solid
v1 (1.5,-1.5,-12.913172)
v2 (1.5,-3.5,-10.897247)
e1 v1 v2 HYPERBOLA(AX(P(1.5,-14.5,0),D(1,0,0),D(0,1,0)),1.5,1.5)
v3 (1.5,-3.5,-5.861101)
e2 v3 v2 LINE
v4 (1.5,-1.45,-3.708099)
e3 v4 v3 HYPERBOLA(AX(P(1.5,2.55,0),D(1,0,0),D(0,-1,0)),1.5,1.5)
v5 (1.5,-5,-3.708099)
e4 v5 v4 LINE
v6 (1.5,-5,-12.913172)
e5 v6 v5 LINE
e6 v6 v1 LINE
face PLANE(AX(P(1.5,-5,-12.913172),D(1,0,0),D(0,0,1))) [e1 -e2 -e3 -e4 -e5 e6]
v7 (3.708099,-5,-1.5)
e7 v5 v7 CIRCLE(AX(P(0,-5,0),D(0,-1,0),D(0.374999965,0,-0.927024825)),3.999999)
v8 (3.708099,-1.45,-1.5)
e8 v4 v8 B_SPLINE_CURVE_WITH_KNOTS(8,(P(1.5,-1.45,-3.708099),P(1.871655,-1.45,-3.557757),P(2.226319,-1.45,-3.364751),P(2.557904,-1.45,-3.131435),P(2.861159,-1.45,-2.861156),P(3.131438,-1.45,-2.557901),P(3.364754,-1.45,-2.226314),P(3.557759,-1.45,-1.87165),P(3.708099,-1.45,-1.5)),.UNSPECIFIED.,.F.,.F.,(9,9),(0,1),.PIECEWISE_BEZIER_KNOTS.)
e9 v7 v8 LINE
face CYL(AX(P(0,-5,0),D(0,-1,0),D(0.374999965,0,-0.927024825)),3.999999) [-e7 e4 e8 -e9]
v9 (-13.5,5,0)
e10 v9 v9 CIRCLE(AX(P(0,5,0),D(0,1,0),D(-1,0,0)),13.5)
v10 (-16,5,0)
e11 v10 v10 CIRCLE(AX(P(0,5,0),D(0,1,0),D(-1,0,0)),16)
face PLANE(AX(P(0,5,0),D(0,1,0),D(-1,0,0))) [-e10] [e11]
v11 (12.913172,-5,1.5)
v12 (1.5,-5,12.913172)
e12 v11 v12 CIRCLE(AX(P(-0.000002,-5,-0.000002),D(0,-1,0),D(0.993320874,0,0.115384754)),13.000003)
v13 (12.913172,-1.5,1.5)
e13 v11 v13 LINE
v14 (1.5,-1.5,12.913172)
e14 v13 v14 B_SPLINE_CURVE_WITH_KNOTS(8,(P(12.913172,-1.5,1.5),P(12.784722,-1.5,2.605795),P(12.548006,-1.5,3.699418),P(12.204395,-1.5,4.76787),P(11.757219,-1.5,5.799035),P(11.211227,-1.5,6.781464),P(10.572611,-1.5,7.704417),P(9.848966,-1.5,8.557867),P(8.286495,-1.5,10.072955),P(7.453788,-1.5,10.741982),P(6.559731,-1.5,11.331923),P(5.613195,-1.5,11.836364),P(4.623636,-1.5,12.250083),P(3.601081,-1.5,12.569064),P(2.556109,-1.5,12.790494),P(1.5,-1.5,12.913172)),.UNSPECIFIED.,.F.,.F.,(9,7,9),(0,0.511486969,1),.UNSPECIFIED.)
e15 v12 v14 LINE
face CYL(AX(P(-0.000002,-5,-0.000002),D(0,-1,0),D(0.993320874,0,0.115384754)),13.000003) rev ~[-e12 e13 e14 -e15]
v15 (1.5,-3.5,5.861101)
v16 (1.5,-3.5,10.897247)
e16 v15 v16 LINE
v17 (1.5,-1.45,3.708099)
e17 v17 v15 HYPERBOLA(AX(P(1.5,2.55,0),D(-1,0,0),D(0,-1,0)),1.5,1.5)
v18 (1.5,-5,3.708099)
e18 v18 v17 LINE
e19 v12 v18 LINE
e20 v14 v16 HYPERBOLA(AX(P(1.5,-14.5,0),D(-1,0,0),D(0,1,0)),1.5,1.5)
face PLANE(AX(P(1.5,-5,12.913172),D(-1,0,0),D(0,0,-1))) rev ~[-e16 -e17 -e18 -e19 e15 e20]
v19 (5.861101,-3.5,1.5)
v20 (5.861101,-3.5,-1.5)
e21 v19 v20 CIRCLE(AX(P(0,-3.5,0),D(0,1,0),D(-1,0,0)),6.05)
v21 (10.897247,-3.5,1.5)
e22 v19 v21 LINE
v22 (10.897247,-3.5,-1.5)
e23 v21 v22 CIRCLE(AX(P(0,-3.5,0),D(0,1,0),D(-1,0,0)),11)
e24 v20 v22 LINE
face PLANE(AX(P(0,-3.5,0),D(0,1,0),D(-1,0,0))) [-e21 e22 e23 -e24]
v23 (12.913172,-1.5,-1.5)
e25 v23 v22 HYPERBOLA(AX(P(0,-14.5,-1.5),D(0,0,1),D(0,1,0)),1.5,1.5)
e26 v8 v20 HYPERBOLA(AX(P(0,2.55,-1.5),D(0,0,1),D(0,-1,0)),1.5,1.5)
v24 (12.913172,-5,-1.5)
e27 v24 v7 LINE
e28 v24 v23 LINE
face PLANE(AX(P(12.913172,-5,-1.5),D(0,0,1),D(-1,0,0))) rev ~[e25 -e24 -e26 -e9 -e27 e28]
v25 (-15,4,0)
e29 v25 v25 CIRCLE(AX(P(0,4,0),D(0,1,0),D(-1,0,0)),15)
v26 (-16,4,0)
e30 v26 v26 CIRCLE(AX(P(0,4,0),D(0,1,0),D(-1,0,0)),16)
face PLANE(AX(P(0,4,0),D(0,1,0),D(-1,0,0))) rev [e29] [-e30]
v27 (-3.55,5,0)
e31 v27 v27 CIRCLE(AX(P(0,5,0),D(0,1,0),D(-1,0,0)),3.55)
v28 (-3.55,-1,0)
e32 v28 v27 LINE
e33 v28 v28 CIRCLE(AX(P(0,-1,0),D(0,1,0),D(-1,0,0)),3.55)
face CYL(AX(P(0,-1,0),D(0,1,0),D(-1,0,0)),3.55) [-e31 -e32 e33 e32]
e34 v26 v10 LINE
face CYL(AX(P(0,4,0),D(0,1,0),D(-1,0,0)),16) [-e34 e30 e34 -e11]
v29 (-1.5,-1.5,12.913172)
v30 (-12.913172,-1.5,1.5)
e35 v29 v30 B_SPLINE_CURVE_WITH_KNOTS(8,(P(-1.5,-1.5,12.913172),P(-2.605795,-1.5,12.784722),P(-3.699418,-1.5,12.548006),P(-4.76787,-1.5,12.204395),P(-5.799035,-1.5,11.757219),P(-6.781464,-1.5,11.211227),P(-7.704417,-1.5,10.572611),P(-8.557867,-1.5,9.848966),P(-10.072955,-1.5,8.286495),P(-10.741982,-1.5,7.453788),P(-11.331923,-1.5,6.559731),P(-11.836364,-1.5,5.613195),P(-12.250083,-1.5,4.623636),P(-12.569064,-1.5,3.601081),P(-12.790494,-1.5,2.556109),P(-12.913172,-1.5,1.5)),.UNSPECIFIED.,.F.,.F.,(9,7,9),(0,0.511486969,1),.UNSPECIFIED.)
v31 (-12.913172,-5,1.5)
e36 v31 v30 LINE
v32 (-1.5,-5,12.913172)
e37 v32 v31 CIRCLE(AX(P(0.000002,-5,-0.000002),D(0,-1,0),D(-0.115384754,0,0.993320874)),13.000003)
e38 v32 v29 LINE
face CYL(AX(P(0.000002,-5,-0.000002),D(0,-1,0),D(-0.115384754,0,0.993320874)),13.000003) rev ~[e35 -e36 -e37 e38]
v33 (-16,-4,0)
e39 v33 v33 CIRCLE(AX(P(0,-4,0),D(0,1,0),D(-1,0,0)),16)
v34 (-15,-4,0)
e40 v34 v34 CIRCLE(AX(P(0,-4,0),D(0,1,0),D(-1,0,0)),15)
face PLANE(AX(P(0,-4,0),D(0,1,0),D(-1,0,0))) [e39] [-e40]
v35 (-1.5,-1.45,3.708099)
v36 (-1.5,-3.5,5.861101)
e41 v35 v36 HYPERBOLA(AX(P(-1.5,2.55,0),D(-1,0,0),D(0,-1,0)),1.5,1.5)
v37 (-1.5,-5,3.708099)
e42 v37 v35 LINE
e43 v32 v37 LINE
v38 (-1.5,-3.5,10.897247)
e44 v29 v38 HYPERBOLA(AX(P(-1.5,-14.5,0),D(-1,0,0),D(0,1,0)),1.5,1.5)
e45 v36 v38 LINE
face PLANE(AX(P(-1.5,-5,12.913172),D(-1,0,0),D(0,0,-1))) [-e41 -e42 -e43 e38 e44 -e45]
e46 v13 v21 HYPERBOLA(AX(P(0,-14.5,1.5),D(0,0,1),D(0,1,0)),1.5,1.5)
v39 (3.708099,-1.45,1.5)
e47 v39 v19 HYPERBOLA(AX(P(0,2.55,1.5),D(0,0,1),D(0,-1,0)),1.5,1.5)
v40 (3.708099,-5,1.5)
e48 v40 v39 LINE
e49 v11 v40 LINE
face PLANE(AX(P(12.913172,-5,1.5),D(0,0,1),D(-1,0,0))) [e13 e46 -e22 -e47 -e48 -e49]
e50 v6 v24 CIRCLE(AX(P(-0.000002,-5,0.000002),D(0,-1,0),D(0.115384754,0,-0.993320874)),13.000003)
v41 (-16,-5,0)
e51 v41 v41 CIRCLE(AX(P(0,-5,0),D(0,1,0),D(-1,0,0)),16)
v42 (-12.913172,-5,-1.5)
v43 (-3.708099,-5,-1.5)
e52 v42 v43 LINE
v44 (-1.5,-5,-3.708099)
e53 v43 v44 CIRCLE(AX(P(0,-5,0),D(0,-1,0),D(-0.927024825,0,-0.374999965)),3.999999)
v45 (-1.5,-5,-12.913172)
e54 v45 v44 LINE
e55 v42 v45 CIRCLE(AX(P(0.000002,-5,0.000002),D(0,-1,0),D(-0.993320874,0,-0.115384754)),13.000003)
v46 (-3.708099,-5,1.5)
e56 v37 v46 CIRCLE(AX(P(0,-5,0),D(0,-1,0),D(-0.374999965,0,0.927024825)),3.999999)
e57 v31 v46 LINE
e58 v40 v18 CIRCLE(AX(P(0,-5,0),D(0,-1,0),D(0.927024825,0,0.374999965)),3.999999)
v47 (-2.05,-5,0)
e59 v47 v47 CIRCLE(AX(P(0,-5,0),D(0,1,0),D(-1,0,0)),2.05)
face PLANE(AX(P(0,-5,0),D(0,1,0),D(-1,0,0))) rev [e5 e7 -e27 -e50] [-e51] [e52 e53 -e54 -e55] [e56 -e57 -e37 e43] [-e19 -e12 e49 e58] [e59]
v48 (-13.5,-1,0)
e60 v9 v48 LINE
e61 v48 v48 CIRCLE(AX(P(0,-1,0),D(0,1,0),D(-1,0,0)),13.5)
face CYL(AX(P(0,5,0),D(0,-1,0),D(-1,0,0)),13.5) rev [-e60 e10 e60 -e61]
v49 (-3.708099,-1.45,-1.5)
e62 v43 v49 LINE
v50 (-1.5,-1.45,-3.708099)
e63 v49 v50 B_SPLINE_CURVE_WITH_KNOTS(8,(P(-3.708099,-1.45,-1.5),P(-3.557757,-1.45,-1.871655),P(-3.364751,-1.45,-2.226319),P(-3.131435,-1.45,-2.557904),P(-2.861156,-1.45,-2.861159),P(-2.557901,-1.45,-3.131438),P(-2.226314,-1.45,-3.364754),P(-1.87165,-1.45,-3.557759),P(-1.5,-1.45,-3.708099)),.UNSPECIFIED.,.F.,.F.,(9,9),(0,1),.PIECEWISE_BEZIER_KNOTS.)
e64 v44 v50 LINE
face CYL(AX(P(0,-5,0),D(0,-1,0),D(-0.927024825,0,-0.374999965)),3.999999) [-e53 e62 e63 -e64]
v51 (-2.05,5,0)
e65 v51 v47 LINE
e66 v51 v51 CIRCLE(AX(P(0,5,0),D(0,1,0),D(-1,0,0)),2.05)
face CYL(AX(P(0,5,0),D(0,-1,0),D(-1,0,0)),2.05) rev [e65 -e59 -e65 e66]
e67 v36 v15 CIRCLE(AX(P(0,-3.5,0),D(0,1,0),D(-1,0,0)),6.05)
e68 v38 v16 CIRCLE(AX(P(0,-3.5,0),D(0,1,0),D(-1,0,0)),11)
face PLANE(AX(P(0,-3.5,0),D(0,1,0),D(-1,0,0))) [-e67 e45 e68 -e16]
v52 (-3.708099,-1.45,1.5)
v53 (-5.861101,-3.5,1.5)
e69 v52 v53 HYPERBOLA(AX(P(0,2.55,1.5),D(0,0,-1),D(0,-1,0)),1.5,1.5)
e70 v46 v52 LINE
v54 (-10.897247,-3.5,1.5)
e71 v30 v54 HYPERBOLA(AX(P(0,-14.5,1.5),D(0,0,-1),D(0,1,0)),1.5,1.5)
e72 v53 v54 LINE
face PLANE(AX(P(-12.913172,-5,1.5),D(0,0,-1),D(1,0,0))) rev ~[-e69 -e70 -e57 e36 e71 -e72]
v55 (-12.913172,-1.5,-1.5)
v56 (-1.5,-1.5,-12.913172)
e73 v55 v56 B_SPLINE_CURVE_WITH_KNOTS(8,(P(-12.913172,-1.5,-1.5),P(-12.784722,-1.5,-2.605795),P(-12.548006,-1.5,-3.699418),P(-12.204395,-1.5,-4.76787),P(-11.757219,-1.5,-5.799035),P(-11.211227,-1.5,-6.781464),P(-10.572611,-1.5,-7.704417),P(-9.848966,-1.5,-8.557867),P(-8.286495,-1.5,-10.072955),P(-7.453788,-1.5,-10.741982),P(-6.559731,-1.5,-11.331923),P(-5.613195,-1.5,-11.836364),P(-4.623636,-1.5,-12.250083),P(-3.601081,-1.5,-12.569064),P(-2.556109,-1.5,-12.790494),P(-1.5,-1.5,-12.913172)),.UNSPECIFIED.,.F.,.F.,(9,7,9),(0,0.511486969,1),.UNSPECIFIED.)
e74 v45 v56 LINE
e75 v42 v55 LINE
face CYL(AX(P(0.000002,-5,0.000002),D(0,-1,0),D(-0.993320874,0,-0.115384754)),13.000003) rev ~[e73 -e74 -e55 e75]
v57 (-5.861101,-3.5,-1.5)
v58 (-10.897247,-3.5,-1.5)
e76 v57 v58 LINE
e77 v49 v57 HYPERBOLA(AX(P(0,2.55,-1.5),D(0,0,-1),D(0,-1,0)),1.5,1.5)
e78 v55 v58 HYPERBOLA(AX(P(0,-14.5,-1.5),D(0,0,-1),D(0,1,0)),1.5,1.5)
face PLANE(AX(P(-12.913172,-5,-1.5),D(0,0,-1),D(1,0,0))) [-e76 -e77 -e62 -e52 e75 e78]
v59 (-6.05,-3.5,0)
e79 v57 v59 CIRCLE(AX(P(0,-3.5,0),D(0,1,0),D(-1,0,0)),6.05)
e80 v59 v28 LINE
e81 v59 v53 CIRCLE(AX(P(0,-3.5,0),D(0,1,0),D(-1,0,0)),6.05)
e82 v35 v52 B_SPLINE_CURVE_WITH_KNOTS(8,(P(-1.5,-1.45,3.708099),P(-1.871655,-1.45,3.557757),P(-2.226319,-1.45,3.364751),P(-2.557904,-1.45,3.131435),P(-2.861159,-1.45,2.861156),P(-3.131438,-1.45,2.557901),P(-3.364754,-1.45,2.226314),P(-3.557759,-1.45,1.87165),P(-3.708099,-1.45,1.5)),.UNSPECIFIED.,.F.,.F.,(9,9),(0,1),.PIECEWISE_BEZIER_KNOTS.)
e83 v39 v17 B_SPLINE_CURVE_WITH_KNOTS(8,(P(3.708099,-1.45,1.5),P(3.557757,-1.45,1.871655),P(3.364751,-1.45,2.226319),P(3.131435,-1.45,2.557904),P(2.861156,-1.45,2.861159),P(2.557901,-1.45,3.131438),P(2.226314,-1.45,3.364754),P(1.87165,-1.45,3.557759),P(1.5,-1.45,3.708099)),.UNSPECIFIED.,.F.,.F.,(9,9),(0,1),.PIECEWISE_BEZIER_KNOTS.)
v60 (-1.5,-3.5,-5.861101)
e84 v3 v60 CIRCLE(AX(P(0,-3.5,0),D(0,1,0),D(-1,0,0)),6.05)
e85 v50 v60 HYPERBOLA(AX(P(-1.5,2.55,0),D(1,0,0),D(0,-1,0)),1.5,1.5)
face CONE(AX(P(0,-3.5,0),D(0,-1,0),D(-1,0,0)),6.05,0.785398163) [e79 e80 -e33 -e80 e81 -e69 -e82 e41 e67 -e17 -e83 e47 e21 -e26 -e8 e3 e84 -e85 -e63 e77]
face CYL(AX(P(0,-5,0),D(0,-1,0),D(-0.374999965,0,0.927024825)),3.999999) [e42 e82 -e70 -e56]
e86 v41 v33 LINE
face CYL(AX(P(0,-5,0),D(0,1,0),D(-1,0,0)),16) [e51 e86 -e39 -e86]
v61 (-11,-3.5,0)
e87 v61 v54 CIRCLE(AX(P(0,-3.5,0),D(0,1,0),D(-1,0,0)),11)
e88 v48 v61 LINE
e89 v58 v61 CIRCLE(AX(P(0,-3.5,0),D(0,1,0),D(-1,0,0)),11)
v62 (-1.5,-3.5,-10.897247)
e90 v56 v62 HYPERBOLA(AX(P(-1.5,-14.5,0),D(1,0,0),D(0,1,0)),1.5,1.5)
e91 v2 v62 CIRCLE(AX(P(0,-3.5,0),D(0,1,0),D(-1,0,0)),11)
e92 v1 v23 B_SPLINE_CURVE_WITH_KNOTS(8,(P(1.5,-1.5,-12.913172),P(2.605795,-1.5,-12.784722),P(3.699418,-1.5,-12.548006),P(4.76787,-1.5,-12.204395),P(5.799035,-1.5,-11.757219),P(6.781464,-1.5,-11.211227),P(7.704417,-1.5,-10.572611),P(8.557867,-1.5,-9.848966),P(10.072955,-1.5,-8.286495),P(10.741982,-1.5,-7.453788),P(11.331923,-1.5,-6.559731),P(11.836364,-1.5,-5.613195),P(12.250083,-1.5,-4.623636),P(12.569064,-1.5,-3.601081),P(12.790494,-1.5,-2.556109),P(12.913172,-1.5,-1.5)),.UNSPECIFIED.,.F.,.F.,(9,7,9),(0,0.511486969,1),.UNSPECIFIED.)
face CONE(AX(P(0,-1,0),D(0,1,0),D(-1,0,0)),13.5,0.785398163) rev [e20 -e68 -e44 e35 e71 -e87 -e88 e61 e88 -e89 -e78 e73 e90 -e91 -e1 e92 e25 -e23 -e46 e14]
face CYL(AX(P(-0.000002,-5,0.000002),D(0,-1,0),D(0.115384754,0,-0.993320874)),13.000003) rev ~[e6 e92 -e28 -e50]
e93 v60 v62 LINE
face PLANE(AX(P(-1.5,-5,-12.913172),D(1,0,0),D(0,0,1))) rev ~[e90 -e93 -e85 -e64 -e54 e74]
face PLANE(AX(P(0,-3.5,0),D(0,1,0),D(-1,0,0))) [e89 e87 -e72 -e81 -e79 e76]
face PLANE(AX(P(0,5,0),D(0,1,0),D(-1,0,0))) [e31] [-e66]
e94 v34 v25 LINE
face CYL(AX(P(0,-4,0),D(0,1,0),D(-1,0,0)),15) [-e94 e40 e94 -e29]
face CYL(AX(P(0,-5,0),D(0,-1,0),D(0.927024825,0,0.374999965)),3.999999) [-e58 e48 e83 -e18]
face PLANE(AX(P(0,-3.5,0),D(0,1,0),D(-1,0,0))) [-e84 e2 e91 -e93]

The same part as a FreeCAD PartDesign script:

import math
import FreeCAD as App
import Part
import Sketcher
from FreeCAD import Vector


def add_polygon(sketch, points):
    """Adds a closed chain of lines whose ends are joined by coincident constraints."""
    first, n = sketch.GeometryCount, len(points)
    for a, b in zip(points, points[1:] + points[:1]):
        sketch.addGeometry(Part.LineSegment(App.Vector(*a, 0), App.Vector(*b, 0)), False)
    for i in range(n):
        sketch.addConstraint(Sketcher.Constraint("Coincident", first + i, 2, first + (i + 1) % n, 1))

doc = App.newDocument("Part")
params = doc.addObject("Spreadsheet::Sheet", "Params")
for row, (alias, value) in enumerate([
    ("sketch1_width", "1 mm"),
    ("sketch1_height", "10 mm"),
    ("sketch1_height2", "6 mm"),
    ("sketch1_width2", "1.5 mm"),
    ("sketch1_width3", "2.5 mm"),
    ("revolution_angle", "360 deg"),
    ("sketch2_radius", "3.999999 mm"),
    ("pocket1_length", "5 mm"),
], start=1):
    params.set(f"A{row}", alias)
    params.set(f"B{row}", "=" + value)
    params.setAlias(f"B{row}", alias)

body = doc.addObject("PartDesign::Body", "Body")

sketch1 = body.newObject("Sketcher::SketchObject", "Sketch")
sketch1.AttachmentSupport = (doc.getObject("XY_Plane"), [""])
sketch1.MapMode = "FlatFace"
add_polygon(sketch1, [(-2, -5), (-2, 5), (-3.5, 5), (-3.5, -1), (-6, -3.5), (-11, -3.5), (-13.5, -1), (-13.5, 5), (-16, 5), (-16, 4), (-15, 4), (-15, -4), (-16, -4), (-16, -5)])
sketch1.addConstraint([
    Sketcher.Constraint("Vertical", 0),
    Sketcher.Constraint("Horizontal", 1),
    Sketcher.Constraint("Vertical", 2),
    Sketcher.Constraint("Horizontal", 4),
    Sketcher.Constraint("Vertical", 6),
    Sketcher.Constraint("Horizontal", 7),
    Sketcher.Constraint("Vertical", 8),
    Sketcher.Constraint("Horizontal", 9),
    Sketcher.Constraint("Vertical", 10),
    Sketcher.Constraint("Horizontal", 11),
    Sketcher.Constraint("Vertical", 12),
    Sketcher.Constraint("Horizontal", 13),
    Sketcher.Constraint("Symmetric", 8, 2, 11, 2, -1),
    Sketcher.Constraint("Perpendicular", 3, 5),
    Sketcher.Constraint("Horizontal", 2, 2, 5, 2),
    Sketcher.Constraint("Horizontal", 1, 2, 6, 2),
    Sketcher.Constraint("Equal", 11, 8),
    Sketcher.Constraint("Equal", 8, 12),
    Sketcher.Constraint("Equal", 3, 5),
    Sketcher.Constraint("DistanceX", 9, 1, 9, 2, 1.0),
    Sketcher.Constraint("DistanceY", 0, 1, 0, 2, 10.0),
    Sketcher.Constraint("DistanceY", 2, 2, 2, 1, 6.0),
    Sketcher.Constraint("DistanceX", 1, 2, 1, 1, 1.5),
    Sketcher.Constraint("DistanceX", 7, 2, 7, 1, 2.5),
    Sketcher.Constraint("DistanceX", 4, 2, -1, 1, 11.0),
    Sketcher.Constraint("DistanceX", 7, 2, -1, 1, 16.0),
    Sketcher.Constraint("DistanceX", 4, 2, 4, 1, 4.95),
])
sketch1.setExpression("Constraints[33]", "Params.sketch1_width")
sketch1.setExpression("Constraints[34]", "Params.sketch1_height")
sketch1.setExpression("Constraints[35]", "Params.sketch1_height2")
sketch1.setExpression("Constraints[36]", "Params.sketch1_width2")
sketch1.setExpression("Constraints[37]", "Params.sketch1_width3")
revolution = body.newObject("PartDesign::Revolution", "Revolution")
revolution.Profile = sketch1
revolution.ReferenceAxis = (sketch1, ["V_Axis"])
revolution.setExpression("Angle", "Params.revolution_angle")

sketch2 = body.newObject("Sketcher::SketchObject", "Sketch001")
sketch2.AttachmentSupport = (doc.getObject("XZ_Plane"), [""])
sketch2.MapMode = "FlatFace"
sketch2.AttachmentOffset = App.Placement(Vector(0, 0, 5), App.Rotation())
sketch2.addGeometry([
    Part.ArcOfCircle(Part.Circle(Vector(0, 0, 0), Vector(0, 0, 1), 4), math.radians(112), math.radians(158)),
    Part.LineSegment(Vector(-1.5, 3.7, 0), Vector(-1.5, 12.9, 0)),
    Part.ArcOfCircle(Part.Circle(Vector(0, 0, 0), Vector(0, 0, 1), 13), math.radians(97), math.radians(173)),
    Part.LineSegment(Vector(-12.9, 1.5, 0), Vector(-3.7, 1.5, 0)),
], False)
sketch2.addConstraint([
    Sketcher.Constraint("Coincident", 0, 1, 1, 1),
    Sketcher.Constraint("Coincident", 1, 2, 2, 1),
    Sketcher.Constraint("Coincident", 2, 2, 3, 1),
    Sketcher.Constraint("Coincident", 3, 2, 0, 2),
    Sketcher.Constraint("Vertical", 1),
    Sketcher.Constraint("Horizontal", 3),
    Sketcher.Constraint("Coincident", 0, 3, -1, 1),
    Sketcher.Constraint("Coincident", 2, 3, -1, 1),
    Sketcher.Constraint("Equal", 3, 1),
    Sketcher.Constraint("Radius", 0, 3.999999),
    Sketcher.Constraint("DistanceX", 0, 1, -1, 1, 1.5),
    Sketcher.Constraint("Radius", 2, 13.000003),
])
sketch2.setExpression("Constraints[9]", "Params.sketch2_radius")
pocket1 = body.newObject("PartDesign::Pocket", "Pocket")
pocket1.Profile = sketch2
pocket1.setExpression("Length", "Params.pocket1_length")
doc.recompute()

polarpattern = body.newObject("PartDesign::PolarPattern", "PolarPattern")
polarpattern.Originals = [pocket1]
polarpattern.Axis = (doc.getObject("Y_Axis"), [""])
polarpattern.Angle = 360
polarpattern.Occurrences = 4
body.Tip = polarpattern

doc.recompute()
